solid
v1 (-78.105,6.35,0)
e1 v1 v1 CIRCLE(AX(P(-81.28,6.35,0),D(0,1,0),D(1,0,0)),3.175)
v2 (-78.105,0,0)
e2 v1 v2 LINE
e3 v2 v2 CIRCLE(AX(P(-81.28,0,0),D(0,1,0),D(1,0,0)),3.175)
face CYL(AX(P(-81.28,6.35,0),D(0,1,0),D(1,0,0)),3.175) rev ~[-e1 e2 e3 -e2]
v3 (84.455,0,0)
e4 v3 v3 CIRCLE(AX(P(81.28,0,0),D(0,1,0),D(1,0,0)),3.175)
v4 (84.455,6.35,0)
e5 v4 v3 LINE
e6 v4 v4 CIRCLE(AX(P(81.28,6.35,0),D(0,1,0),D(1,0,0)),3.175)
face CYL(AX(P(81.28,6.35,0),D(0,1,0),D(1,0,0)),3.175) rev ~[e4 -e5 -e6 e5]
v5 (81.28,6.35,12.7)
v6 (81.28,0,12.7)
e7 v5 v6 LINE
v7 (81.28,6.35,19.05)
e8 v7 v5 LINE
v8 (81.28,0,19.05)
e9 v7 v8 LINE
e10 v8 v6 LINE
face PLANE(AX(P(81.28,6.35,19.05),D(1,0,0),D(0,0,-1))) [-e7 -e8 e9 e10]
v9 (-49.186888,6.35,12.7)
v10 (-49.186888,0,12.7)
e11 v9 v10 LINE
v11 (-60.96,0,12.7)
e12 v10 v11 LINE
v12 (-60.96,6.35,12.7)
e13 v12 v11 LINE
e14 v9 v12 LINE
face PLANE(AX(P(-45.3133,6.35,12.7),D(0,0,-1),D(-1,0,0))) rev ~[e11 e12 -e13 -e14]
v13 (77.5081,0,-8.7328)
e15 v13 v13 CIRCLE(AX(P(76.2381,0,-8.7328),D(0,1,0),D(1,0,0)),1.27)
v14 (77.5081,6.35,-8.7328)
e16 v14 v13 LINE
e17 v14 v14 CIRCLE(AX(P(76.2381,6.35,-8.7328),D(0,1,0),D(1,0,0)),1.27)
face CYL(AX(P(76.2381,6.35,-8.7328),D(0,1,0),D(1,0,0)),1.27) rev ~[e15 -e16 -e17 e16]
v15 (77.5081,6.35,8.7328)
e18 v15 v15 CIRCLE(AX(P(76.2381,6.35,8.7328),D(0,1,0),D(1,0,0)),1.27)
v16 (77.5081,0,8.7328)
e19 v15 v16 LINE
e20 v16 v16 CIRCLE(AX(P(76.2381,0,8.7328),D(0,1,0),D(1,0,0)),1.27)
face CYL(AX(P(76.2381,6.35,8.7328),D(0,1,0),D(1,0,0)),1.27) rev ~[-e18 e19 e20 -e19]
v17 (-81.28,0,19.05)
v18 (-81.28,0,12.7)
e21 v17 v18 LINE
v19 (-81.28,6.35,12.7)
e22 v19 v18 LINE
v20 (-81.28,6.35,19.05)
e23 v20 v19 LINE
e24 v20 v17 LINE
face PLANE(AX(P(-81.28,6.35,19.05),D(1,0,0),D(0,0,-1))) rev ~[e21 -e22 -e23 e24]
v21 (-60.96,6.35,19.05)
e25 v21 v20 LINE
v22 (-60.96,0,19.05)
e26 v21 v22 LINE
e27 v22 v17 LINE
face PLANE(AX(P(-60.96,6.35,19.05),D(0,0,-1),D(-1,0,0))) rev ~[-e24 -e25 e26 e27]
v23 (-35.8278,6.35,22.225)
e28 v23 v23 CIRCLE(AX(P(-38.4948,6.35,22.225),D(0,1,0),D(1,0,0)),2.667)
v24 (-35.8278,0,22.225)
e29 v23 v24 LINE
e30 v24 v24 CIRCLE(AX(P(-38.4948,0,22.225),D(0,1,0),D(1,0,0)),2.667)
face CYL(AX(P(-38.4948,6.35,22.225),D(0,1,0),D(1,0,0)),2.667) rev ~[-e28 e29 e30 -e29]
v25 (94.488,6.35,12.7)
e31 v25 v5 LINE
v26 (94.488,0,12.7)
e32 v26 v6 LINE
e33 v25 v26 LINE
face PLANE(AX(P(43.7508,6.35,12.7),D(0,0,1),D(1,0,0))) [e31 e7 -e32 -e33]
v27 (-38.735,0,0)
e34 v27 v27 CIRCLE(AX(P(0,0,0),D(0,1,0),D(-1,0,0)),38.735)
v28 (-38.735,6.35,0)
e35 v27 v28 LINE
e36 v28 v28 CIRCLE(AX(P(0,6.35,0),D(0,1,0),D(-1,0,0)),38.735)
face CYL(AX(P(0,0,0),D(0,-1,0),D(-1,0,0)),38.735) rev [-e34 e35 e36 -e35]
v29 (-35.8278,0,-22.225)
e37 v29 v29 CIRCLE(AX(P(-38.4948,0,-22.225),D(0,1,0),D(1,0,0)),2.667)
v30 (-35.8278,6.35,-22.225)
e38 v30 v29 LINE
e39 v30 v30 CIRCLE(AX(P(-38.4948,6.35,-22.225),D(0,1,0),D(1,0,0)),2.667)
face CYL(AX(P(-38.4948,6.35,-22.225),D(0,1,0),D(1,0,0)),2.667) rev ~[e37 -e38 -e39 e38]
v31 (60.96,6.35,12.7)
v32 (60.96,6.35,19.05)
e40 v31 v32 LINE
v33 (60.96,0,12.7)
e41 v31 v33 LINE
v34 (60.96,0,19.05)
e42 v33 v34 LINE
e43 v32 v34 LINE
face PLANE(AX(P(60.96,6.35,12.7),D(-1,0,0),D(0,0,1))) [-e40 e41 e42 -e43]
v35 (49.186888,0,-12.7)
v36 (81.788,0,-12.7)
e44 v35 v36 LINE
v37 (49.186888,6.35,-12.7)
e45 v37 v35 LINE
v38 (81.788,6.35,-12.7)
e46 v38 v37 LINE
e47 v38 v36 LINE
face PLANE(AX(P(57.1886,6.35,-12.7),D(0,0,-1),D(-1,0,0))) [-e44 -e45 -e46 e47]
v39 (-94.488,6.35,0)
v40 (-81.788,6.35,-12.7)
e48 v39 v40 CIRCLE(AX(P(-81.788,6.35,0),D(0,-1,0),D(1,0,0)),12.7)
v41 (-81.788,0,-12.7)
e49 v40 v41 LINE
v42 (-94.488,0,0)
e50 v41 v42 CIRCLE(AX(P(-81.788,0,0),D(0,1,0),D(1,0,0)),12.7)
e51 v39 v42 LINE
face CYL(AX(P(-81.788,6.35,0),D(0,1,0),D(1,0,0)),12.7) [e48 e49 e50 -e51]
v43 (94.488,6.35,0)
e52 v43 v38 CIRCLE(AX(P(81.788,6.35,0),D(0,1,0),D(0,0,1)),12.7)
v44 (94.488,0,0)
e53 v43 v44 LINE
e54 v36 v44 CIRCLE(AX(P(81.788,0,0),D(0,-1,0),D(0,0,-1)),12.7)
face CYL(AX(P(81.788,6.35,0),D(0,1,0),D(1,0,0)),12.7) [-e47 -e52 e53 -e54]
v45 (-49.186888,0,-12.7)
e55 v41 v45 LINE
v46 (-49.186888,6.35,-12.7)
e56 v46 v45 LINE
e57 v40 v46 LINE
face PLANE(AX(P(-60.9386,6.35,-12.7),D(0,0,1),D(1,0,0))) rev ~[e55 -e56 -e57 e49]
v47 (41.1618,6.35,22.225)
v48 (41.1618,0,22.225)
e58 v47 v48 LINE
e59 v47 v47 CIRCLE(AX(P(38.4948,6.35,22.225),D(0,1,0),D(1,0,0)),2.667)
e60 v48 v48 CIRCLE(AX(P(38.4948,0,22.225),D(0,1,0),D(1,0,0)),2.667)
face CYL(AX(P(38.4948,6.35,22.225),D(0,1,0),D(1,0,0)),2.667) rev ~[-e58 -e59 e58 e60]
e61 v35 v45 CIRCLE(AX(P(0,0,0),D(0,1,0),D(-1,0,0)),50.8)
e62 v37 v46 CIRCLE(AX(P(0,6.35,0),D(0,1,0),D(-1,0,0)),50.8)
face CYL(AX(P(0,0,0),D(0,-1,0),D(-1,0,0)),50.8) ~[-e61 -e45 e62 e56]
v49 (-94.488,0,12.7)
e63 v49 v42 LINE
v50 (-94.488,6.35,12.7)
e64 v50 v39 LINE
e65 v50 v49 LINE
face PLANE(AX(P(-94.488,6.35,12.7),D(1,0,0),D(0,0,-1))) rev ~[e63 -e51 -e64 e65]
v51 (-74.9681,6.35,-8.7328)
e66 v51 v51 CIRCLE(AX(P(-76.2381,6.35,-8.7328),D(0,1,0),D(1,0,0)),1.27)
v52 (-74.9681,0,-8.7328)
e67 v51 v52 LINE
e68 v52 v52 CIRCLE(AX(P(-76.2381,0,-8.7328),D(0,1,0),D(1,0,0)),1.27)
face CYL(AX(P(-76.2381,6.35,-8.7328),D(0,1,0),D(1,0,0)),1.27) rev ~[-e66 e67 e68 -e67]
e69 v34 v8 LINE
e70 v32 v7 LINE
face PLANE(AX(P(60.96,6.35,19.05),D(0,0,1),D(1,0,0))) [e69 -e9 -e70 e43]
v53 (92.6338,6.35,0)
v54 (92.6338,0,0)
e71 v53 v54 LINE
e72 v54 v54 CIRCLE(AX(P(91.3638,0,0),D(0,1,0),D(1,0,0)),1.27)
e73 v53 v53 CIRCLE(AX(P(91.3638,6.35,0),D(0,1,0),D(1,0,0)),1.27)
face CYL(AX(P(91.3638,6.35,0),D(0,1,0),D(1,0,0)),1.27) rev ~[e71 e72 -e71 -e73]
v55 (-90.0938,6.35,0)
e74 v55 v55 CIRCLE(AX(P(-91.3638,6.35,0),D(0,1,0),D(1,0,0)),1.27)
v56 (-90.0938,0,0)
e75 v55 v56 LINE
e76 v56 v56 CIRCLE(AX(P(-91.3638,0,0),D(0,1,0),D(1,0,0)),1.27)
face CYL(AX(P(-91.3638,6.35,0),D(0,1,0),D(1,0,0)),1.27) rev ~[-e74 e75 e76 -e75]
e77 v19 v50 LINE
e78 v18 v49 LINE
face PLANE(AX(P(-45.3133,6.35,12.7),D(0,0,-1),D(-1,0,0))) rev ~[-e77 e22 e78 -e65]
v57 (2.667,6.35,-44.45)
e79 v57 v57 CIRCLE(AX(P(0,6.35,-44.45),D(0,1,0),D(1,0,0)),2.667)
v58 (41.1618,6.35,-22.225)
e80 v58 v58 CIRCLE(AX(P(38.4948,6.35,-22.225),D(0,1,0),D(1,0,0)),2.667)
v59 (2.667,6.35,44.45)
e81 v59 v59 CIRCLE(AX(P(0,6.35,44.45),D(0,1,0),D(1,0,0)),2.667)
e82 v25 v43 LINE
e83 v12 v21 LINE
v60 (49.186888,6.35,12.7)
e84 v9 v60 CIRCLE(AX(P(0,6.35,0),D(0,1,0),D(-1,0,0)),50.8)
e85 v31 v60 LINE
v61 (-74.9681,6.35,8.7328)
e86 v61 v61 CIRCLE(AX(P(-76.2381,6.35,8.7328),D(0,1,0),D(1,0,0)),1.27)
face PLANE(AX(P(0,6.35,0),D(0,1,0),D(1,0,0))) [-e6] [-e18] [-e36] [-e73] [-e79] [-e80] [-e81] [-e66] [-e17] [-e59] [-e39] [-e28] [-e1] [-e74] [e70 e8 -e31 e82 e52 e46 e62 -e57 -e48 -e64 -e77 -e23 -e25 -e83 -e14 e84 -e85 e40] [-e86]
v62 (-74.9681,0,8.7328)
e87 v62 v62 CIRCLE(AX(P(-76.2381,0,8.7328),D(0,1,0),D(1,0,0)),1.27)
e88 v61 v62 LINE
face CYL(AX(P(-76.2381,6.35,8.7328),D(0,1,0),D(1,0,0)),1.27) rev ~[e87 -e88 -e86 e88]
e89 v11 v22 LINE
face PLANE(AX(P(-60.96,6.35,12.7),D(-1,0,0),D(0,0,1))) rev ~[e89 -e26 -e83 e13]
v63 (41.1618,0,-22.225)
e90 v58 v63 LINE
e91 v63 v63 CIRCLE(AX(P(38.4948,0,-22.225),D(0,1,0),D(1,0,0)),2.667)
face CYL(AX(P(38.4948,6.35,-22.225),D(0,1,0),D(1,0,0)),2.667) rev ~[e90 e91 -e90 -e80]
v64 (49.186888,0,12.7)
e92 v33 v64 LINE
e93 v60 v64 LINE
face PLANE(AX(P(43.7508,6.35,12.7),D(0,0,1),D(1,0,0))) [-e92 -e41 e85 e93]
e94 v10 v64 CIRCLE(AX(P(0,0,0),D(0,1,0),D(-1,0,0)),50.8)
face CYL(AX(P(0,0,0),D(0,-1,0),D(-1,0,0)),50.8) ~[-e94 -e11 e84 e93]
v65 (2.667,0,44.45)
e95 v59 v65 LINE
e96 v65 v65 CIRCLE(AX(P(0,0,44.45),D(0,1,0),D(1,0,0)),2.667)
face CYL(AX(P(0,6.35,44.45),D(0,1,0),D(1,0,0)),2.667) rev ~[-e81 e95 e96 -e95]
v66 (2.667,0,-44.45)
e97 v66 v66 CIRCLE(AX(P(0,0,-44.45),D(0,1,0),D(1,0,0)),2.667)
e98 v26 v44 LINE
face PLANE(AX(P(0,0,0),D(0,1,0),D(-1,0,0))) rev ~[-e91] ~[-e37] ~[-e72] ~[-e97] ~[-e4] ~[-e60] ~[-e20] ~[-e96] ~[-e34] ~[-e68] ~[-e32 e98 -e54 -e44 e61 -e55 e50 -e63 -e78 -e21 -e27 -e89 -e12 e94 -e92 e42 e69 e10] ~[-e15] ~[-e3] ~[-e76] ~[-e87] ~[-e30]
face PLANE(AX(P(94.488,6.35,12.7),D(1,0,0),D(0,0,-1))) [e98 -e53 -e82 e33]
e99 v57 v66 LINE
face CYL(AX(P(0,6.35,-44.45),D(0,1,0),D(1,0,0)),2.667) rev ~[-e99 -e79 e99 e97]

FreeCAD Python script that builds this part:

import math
import FreeCAD as App
import Part
import Sketcher
Q = App.Units.Quantity


def add_polygon(sketch, points):
    """Adds a closed chain of lines whose ends are joined by coincident constraints."""
    first, n = sketch.GeometryCount, len(points)
    for a, b in zip(points, points[1:] + points[:1]):
        sketch.addGeometry(Part.LineSegment(App.Vector(*a, 0), App.Vector(*b, 0)), False)
    for i in range(n):
        sketch.addConstraint(Sketcher.Constraint("Coincident", first + i, 2, first + (i + 1) % n, 1))

doc = App.newDocument("Part")
params = doc.addObject("Spreadsheet::Sheet", "Params")
for row, (alias, value) in enumerate([
    ("sketch1_diameter", "4 in"),
    ("sketch1_diameter2", "3.05 in"),
    ("pad1_length", "0.25 in"),
    ("sketch2_diameter", "0.21 in"),
    ("pocket1_length", "0.25 in"),
    ("sketch3_height", "1 in"),
    ("sketch3_width", "1.22 in"),
    ("pad2_length", "0.25 in"),
    ("sketch4_height", "1 in"),
    ("pad3_length", "0.25 in"),
    ("sketch5_diameter", "1 in"),
    ("pad4_length", "0.25 in"),
    ("sketch6_diameter", "0.1 in"),
    ("sketch6_diameter2", "0.25 in"),
    ("pocket2_length", "0.25 in"),
    ("sketch7_radius", "0.5 in"),
    ("pad5_length", "0.25 in"),
    ("sketch8_width", "0.8 in"),
    ("sketch8_height", "0.25 in"),
    ("pad6_length", "0.25 in"),
], start=1):
    params.set(f"A{row}", alias)
    params.set(f"B{row}", "=" + value)
    params.setAlias(f"B{row}", alias)

body = doc.addObject("PartDesign::Body", "Body")
body.AllowCompound = True

# Sketch on XZ plane
sketch1 = body.newObject("Sketcher::SketchObject", "Sketch")
sketch1.AttachmentSupport = (doc.getObject("XZ_Plane"), [""])
sketch1.MapMode = "FlatFace"
sketch1.addGeometry(Part.Circle(App.Vector(0, 0, 0), App.Vector(0, 0, 1), 51), False)
sketch1.addGeometry(Part.Circle(App.Vector(0, 0, 0), App.Vector(0, 0, 1), 39), False)
sketch1.addConstraint(Sketcher.Constraint("Coincident", 0, 3, -1, 1))
sketch1.addConstraint(Sketcher.Constraint("Coincident", 1, 3, -1, 1))
sketch1.addConstraint(Sketcher.Constraint("Diameter", 0, Q("4 in")))
sketch1.addConstraint(Sketcher.Constraint("Diameter", 1, Q("3.05 in")))
sketch1.setExpression("Constraints[2]", "Params.sketch1_diameter")
sketch1.setExpression("Constraints[3]", "Params.sketch1_diameter2")
pad1 = body.newObject("PartDesign::Pad", "Pad")
pad1.Profile = sketch1
pad1.setExpression("Length", "Params.pad1_length")
pad1.Reversed = True

# Sketch on XZ plane
sketch2 = body.newObject("Sketcher::SketchObject", "Sketch001")
sketch2.AttachmentSupport = (doc.getObject("XZ_Plane"), [""])
sketch2.MapMode = "FlatFace"
sketch2.AttachmentOffset = App.Placement(App.Vector(0, 0, -0.25 * 25.4), App.Rotation())
sketch2.addGeometry(Part.Circle(App.Vector(0, 44.5, 0), App.Vector(0, 0, 1), 2.7), False)
sketch2.addGeometry(Part.Circle(App.Vector(38.5, 22.2, 0), App.Vector(0, 0, 1), 2.7), False)
sketch2.addGeometry(Part.Circle(App.Vector(38.5, -22.2, 0), App.Vector(0, 0, 1), 2.7), False)
sketch2.addGeometry(Part.Circle(App.Vector(0, -44.5, 0), App.Vector(0, 0, 1), 2.7), False)
sketch2.addGeometry(Part.Circle(App.Vector(-38.5, -22.2, 0), App.Vector(0, 0, 1), 2.7), False)
sketch2.addGeometry(Part.Circle(App.Vector(-38.5, 22.2, 0), App.Vector(0, 0, 1), 2.7), False)
sketch2.addConstraint(Sketcher.Constraint("Equal", 0, 1))
sketch2.addConstraint(Sketcher.Constraint("Equal", 1, 2))
sketch2.addConstraint(Sketcher.Constraint("Equal", 2, 3))
sketch2.addConstraint(Sketcher.Constraint("Equal", 3, 4))
sketch2.addConstraint(Sketcher.Constraint("Equal", 4, 5))
sketch2.addConstraint(Sketcher.Constraint("Symmetric", 0, 3, 3, 3, -1, 1))
sketch2.addConstraint(Sketcher.Constraint("Symmetric", 1, 3, 4, 3, -1, 1))
sketch2.addConstraint(Sketcher.Constraint("Symmetric", 2, 3, 5, 3, -1, 1))
sketch2.addConstraint(Sketcher.Constraint("Symmetric", 2, 3, 4, 3, -2))
sketch2.addConstraint(Sketcher.Constraint("PointOnObject", 0, 3, -2))
sketch2.addConstraint(Sketcher.Constraint("Diameter", 0, Q("0.21 in")))
sketch2.addConstraint(Sketcher.Constraint("DistanceY", 3, 3, 0, 3, Q("3.5 in")))
sketch2.addConstraint(Sketcher.Constraint("DistanceY", 2, 3, 1, 3, Q("1.75 in")))
sketch2.addConstraint(Sketcher.Constraint("DistanceX", -1, 1, 1, 3, Q("38.4948 mm")))
sketch2.setExpression("Constraints[10]", "Params.sketch2_diameter")
pocket1 = body.newObject("PartDesign::Pocket", "Pocket")
pocket1.Profile = sketch2
pocket1.setExpression("Length", "Params.pocket1_length")
pocket1.Reversed = True

# Sketch on XZ plane
sketch3 = body.newObject("Sketcher::SketchObject", "Sketch002")
sketch3.AttachmentSupport = (doc.getObject("XZ_Plane"), [""])
sketch3.MapMode = "FlatFace"
sketch3.AttachmentOffset = App.Placement(App.Vector(0, 0, -0.25 * 25.4), App.Rotation())
add_polygon(sketch3, [(82, -13), (51, -13), (51, 13), (82, 13)])  # lines 0-3
add_polygon(sketch3, [(-51, 13), (-51, -13), (-82, -13), (-82, 13)])  # lines 4-7
sketch3.addConstraint(Sketcher.Constraint("Horizontal", 0))
sketch3.addConstraint(Sketcher.Constraint("Vertical", 1))
sketch3.addConstraint(Sketcher.Constraint("Horizontal", 2))
sketch3.addConstraint(Sketcher.Constraint("Vertical", 3))
sketch3.addConstraint(Sketcher.Constraint("Vertical", 4))
sketch3.addConstraint(Sketcher.Constraint("Horizontal", 5))
sketch3.addConstraint(Sketcher.Constraint("Vertical", 6))
sketch3.addConstraint(Sketcher.Constraint("Horizontal", 7))
sketch3.addConstraint(Sketcher.Constraint("Symmetric", 1, 2, 4, 2, -1, 1))
sketch3.addConstraint(Sketcher.Constraint("Symmetric", 3, 2, 6, 2, -1, 1))
sketch3.addConstraint(Sketcher.Constraint("Horizontal", 3, 2, 4, 2))
sketch3.addConstraint(Sketcher.Constraint("DistanceY", 1, 1, 1, 2, Q("1 in")))
sketch3.addConstraint(Sketcher.Constraint("DistanceX", 0, 2, 0, 1, Q("1.22 in")))
sketch3.addConstraint(Sketcher.Constraint("DistanceX", -1, 1, 0, 2, Q("2 in")))
sketch3.setExpression("Constraints[19]", "Params.sketch3_height")
sketch3.setExpression("Constraints[20]", "Params.sketch3_width")
pad2 = body.newObject("PartDesign::Pad", "Pad001")
pad2.Profile = sketch3
pad2.setExpression("Length", "Params.pad2_length")

# Sketch on XZ plane
sketch4 = body.newObject("Sketcher::SketchObject", "Sketch003")
sketch4.AttachmentSupport = (doc.getObject("XZ_Plane"), [""])
sketch4.MapMode = "FlatFace"
sketch4.AttachmentOffset = App.Placement(App.Vector(0, 0, -0.25 * 25.4), App.Rotation())
add_polygon(sketch4, [(-45, -13), (-61, -13), (-61, 13), (-45, 13)])  # lines 0-3
add_polygon(sketch4, [(57, 13), (57, -13), (44, -13), (44, 13)])  # lines 4-7
sketch4.addConstraint(Sketcher.Constraint("Horizontal", 0))
sketch4.addConstraint(Sketcher.Constraint("Vertical", 1))
sketch4.addConstraint(Sketcher.Constraint("Horizontal", 2))
sketch4.addConstraint(Sketcher.Constraint("Vertical", 3))
sketch4.addConstraint(Sketcher.Constraint("Vertical", 4))
sketch4.addConstraint(Sketcher.Constraint("Horizontal", 5))
sketch4.addConstraint(Sketcher.Constraint("Vertical", 6))
sketch4.addConstraint(Sketcher.Constraint("Horizontal", 7))
sketch4.addConstraint(Sketcher.Constraint("Horizontal", 3, 2, 4, 2))
sketch4.addConstraint(Sketcher.Constraint("Horizontal", 2, 2, 6, 2))
sketch4.addConstraint(Sketcher.Constraint("DistanceY", 1, 1, 1, 2, Q("1 in")))
sketch4.addConstraint(Sketcher.Constraint("DistanceY", 0, 2, -1, 1, Q("0.5 in")))
sketch4.addConstraint(Sketcher.Constraint("DistanceX", 2, 2, -1, 1, Q("1.784 in")))
sketch4.addConstraint(Sketcher.Constraint("DistanceX", 0, 2, 0, 1, Q("15.6253 mm")))
sketch4.addConstraint(Sketcher.Constraint("DistanceX", 5, 2, 5, 1, Q("13.4378 mm")))
sketch4.addConstraint(Sketcher.Constraint("DistanceX", 3, 2, 4, 2, Q("4.0355 in")))
sketch4.setExpression("Constraints[18]", "Params.sketch4_height")
pad3 = body.newObject("PartDesign::Pad", "Pad002")
pad3.Profile = sketch4
pad3.setExpression("Length", "Params.pad3_length")

# Sketch on XZ plane
sketch5 = body.newObject("Sketcher::SketchObject", "Sketch004")
sketch5.AttachmentSupport = (doc.getObject("XZ_Plane"), [""])
sketch5.MapMode = "FlatFace"
sketch5.AttachmentOffset = App.Placement(App.Vector(0, 0, -0.25 * 25.4), App.Rotation())
sketch5.addGeometry(Part.Circle(App.Vector(82, 0, 0), App.Vector(0, 0, 1), 13), False)
sketch5.addGeometry(Part.Circle(App.Vector(-82, 0, 0), App.Vector(0, 0, 1), 13), False)
sketch5.addConstraint(Sketcher.Constraint("Equal", 0, 1))
sketch5.addConstraint(Sketcher.Constraint("Symmetric", 0, 3, 1, 3, -1, 1))
sketch5.addConstraint(Sketcher.Constraint("PointOnObject", 0, 3, -1))
sketch5.addConstraint(Sketcher.Constraint("Diameter", 0, Q("1 in")))
sketch5.addConstraint(Sketcher.Constraint("DistanceX", -1, 1, 0, 3, Q("3.22 in")))
sketch5.setExpression("Constraints[3]", "Params.sketch5_diameter")
pad4 = body.newObject("PartDesign::Pad", "Pad003")
pad4.Profile = sketch5
pad4.setExpression("Length", "Params.pad4_length")

# Sketch on XZ plane
sketch6 = body.newObject("Sketcher::SketchObject", "Sketch005")
sketch6.AttachmentSupport = (doc.getObject("XZ_Plane"), [""])
sketch6.MapMode = "FlatFace"
sketch6.AttachmentOffset = App.Placement(App.Vector(0, 0, -0.25 * 25.4), App.Rotation())
sketch6.addGeometry(Part.Circle(App.Vector(81.3, 0, 0), App.Vector(0, 0, 1), 3.2), False)
sketch6.addGeometry(Part.Circle(App.Vector(91.4, 0, 0), App.Vector(0, 0, 1), 1.3), False)
sketch6.addGeometry(Part.Circle(App.Vector(76.2, -8.7, 0), App.Vector(0, 0, 1), 1.3), False)
sketch6.addGeometry(Part.Circle(App.Vector(76.2, 8.7, 0), App.Vector(0, 0, 1), 1.3), False)
sketch6.addGeometry(Part.Circle(App.Vector(-81.3, 0, 0), App.Vector(0, 0, 1), 3.2), False)
sketch6.addGeometry(Part.Circle(App.Vector(-91.4, 0, 0), App.Vector(0, 0, 1), 1.3), False)
sketch6.addGeometry(Part.Circle(App.Vector(-76.2, 8.7, 0), App.Vector(0, 0, 1), 1.3), False)
sketch6.addGeometry(Part.Circle(App.Vector(-76.2, -8.7, 0), App.Vector(0, 0, 1), 1.3), False)
sketch6.addConstraint(Sketcher.Constraint("Equal", 1, 2))
sketch6.addConstraint(Sketcher.Constraint("Equal", 2, 3))
sketch6.addConstraint(Sketcher.Constraint("Equal", 0, 4))
sketch6.addConstraint(Sketcher.Constraint("Equal", 3, 5))
sketch6.addConstraint(Sketcher.Constraint("Equal", 5, 6))
sketch6.addConstraint(Sketcher.Constraint("Equal", 6, 7))
sketch6.addConstraint(Sketcher.Constraint("Symmetric", 0, 3, 4, 3, -1, 1))
sketch6.addConstraint(Sketcher.Constraint("Symmetric", 1, 3, 5, 3, -1, 1))
sketch6.addConstraint(Sketcher.Constraint("Symmetric", 2, 3, 6, 3, -1, 1))
sketch6.addConstraint(Sketcher.Constraint("Symmetric", 3, 3, 7, 3, -1, 1))
sketch6.addConstraint(Sketcher.Constraint("Symmetric", 3, 3, 6, 3, -2))
sketch6.addConstraint(Sketcher.Constraint("PointOnObject", 0, 3, -1))
sketch6.addConstraint(Sketcher.Constraint("PointOnObject", 1, 3, -1))
sketch6.addConstraint(Sketcher.Constraint("Diameter", 1, Q("0.1 in")))
sketch6.addConstraint(Sketcher.Constraint("Diameter", 0, Q("0.25 in")))
sketch6.addConstraint(Sketcher.Constraint("DistanceX", -1, 1, 0, 3, Q("3.2 in")))
sketch6.addConstraint(Sketcher.Constraint("DistanceX", -1, 1, 1, 3, Q("3.597 in")))
sketch6.addConstraint(Sketcher.Constraint("DistanceX", 6, 3, 3, 3, Q("6.003 in")))
sketch6.addConstraint(Sketcher.Constraint("DistanceY", 2, 3, -1, 1, Q("0.3438 in")))
sketch6.setExpression("Constraints[13]", "Params.sketch6_diameter")
sketch6.setExpression("Constraints[14]", "Params.sketch6_diameter2")
pocket2 = body.newObject("PartDesign::Pocket", "Pocket001")
pocket2.Profile = sketch6
pocket2.setExpression("Length", "Params.pocket2_length")
pocket2.Reversed = True

# Sketch on XZ plane
sketch7 = body.newObject("Sketcher::SketchObject", "Sketch006")
sketch7.AttachmentSupport = (doc.getObject("XZ_Plane"), [""])
sketch7.MapMode = "FlatFace"
sketch7.AttachmentOffset = App.Placement(App.Vector(0, 0, -0.25 * 25.4), App.Rotation())
sketch7.addGeometry(Part.ArcOfCircle(Part.Circle(App.Vector(-82, 0, 0), App.Vector(0, 0, 1), 13), math.radians(90), math.radians(180)), False)
sketch7.addGeometry(Part.LineSegment(App.Vector(-94, 0, 0), App.Vector(-94, 13, 0)), False)
sketch7.addGeometry(Part.LineSegment(App.Vector(-94, 13, 0), App.Vector(-82, 13, 0)), False)
sketch7.addGeometry(Part.ArcOfCircle(Part.Circle(App.Vector(82, 0, 0), App.Vector(0, 0, 1), 13), math.radians(0), math.radians(90)), False)
sketch7.addGeometry(Part.LineSegment(App.Vector(82, 13, 0), App.Vector(94, 13, 0)), False)
sketch7.addGeometry(Part.LineSegment(App.Vector(94, 13, 0), App.Vector(94, 0, 0)), False)
sketch7.addConstraint(Sketcher.Constraint("Tangent", 0, 2, 1, 1))
sketch7.addConstraint(Sketcher.Constraint("Coincident", 1, 2, 2, 1))
sketch7.addConstraint(Sketcher.Constraint("Tangent", 2, 2, 0, 1))
sketch7.addConstraint(Sketcher.Constraint("Tangent", 3, 2, 4, 1))
sketch7.addConstraint(Sketcher.Constraint("Coincident", 4, 2, 5, 1))
sketch7.addConstraint(Sketcher.Constraint("Tangent", 5, 2, 3, 1))
sketch7.addConstraint(Sketcher.Constraint("Vertical", 1))
sketch7.addConstraint(Sketcher.Constraint("Horizontal", 2))
sketch7.addConstraint(Sketcher.Constraint("Horizontal", 4))
sketch7.addConstraint(Sketcher.Constraint("Vertical", 5))
sketch7.addConstraint(Sketcher.Constraint("Equal", 0, 3))
sketch7.addConstraint(Sketcher.Constraint("Symmetric", 0, 3, 3, 3, -1, 1))
sketch7.addConstraint(Sketcher.Constraint("PointOnObject", 0, 3, -1))
sketch7.addConstraint(Sketcher.Constraint("Radius", 0, Q("0.5 in")))
sketch7.addConstraint(Sketcher.Constraint("DistanceX", 0, 3, -1, 1, Q("3.22 in")))
sketch7.setExpression("Constraints[13]", "Params.sketch7_radius")
pad5 = body.newObject("PartDesign::Pad", "Pad004")
pad5.Profile = sketch7
pad5.setExpression("Length", "Params.pad5_length")

# Sketch on XZ plane
sketch8 = body.newObject("Sketcher::SketchObject", "Sketch007")
sketch8.AttachmentSupport = (doc.getObject("XZ_Plane"), [""])
sketch8.MapMode = "FlatFace"
sketch8.AttachmentOffset = App.Placement(App.Vector(0, 0, -0.25 * 25.4), App.Rotation())
add_polygon(sketch8, [(-61, 19), (-61, 13), (-81, 13), (-81, 19)])  # lines 0-3
add_polygon(sketch8, [(81, 19), (81, 13), (61, 13), (61, 19)])  # lines 4-7
sketch8.addConstraint(Sketcher.Constraint("Vertical", 0))
sketch8.addConstraint(Sketcher.Constraint("Horizontal", 1))
sketch8.addConstraint(Sketcher.Constraint("Vertical", 2))
sketch8.addConstraint(Sketcher.Constraint("Horizontal", 3))
sketch8.addConstraint(Sketcher.Constraint("Vertical", 4))
sketch8.addConstraint(Sketcher.Constraint("Horizontal", 5))
sketch8.addConstraint(Sketcher.Constraint("Vertical", 6))
sketch8.addConstraint(Sketcher.Constraint("Horizontal", 7))
sketch8.addConstraint(Sketcher.Constraint("Symmetric", 1, 2, 4, 2, -2))
sketch8.addConstraint(Sketcher.Constraint("Symmetric", 3, 2, 6, 2, -2))
sketch8.addConstraint(Sketcher.Constraint("DistanceX", 1, 2, 1, 1, Q("0.8 in")))
sketch8.addConstraint(Sketcher.Constraint("DistanceY", 0, 2, 0, 1, Q("0.25 in")))
sketch8.addConstraint(Sketcher.Constraint("DistanceX", 0, 2, -1, 1, Q("2.4 in")))
sketch8.addConstraint(Sketcher.Constraint("DistanceY", -1, 1, 0, 2, Q("0.5 in")))
sketch8.setExpression("Constraints[18]", "Params.sketch8_width")
sketch8.setExpression("Constraints[19]", "Params.sketch8_height")
pad6 = body.newObject("PartDesign::Pad", "Pad005")
pad6.Profile = sketch8
pad6.setExpression("Length", "Params.pad6_length")

doc.recompute()
